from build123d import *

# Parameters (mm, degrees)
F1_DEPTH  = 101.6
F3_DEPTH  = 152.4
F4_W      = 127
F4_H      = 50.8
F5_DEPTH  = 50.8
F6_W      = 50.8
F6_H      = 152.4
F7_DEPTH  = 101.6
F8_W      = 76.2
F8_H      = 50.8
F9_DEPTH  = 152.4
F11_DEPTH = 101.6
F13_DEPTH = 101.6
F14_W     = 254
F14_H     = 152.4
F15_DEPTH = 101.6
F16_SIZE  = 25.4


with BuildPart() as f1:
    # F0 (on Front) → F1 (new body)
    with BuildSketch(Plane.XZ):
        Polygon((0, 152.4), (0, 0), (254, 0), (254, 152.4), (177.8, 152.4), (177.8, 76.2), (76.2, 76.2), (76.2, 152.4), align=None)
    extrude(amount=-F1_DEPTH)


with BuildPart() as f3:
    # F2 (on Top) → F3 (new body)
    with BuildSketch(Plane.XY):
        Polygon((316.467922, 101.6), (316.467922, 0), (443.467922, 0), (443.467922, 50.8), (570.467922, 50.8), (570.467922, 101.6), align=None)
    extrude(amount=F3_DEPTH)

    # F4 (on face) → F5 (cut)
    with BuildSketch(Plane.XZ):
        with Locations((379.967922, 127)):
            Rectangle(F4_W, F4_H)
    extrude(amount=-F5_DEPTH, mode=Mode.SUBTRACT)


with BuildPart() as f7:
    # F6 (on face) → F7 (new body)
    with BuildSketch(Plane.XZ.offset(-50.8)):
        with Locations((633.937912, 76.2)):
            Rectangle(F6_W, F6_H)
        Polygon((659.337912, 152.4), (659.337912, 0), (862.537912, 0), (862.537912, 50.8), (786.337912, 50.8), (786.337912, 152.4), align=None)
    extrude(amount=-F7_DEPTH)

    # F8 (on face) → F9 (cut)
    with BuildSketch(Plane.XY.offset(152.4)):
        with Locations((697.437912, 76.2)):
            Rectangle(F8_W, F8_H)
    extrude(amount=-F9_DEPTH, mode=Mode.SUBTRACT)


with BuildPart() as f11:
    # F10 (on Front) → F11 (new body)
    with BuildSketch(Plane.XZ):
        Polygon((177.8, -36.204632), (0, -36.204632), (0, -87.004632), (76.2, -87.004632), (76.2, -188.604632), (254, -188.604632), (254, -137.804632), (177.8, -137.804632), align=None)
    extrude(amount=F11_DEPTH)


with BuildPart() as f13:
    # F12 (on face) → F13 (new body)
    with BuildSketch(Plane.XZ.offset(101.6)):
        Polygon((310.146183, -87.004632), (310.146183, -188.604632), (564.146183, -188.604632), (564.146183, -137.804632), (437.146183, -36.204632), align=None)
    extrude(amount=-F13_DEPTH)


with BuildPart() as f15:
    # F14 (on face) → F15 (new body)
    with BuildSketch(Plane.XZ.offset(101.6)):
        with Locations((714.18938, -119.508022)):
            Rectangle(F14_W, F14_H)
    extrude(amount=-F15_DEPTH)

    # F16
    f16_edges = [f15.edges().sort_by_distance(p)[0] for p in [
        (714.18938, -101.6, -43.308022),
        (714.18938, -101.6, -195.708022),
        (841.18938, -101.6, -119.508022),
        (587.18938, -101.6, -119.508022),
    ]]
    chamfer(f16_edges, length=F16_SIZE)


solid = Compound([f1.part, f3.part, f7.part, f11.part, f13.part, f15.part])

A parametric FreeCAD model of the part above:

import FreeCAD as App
import Part
import Sketcher
from FreeCAD import Vector
Q = App.Units.Quantity


def edges_at(feature, points):
    """Names of the edges that pass closest to the given points."""
    edges = feature.Shape.Edges
    near = lambda p: min(range(len(edges)), key=lambda i: edges[i].distToShape(Part.Vertex(*p))[0])
    return sorted({f"Edge{near(p) + 1}" for p in points})


def add_polygon(sketch, points):
    """Adds a closed chain of lines whose ends are joined by coincident constraints."""
    first, n = sketch.GeometryCount, len(points)
    for a, b in zip(points, points[1:] + points[:1]):
        sketch.addGeometry(Part.LineSegment(App.Vector(*a, 0), App.Vector(*b, 0)), False)
    for i in range(n):
        sketch.addConstraint(Sketcher.Constraint("Coincident", first + i, 2, first + (i + 1) % n, 1))

doc = App.newDocument("Part")
body = doc.addObject("PartDesign::Body", "Body")

# Sketch on XZ plane
sketch1 = doc.addObject("Sketcher::SketchObject", "Sketch")
body.addObject(sketch1)
sketch1.AttachmentSupport = (doc.XZ_Plane, [""])
sketch1.MapMode = "FlatFace"
add_polygon(sketch1, [(0, 152), (0, 0), (254, 0), (254, 152), (178, 152), (178, 76), (76, 76), (76, 152)])  # lines 0-7
sketch1.addConstraint(Sketcher.Constraint("Vertical", 0))
sketch1.addConstraint(Sketcher.Constraint("Horizontal", 1))
sketch1.addConstraint(Sketcher.Constraint("Vertical", 2))
sketch1.addConstraint(Sketcher.Constraint("Horizontal", 3))
sketch1.addConstraint(Sketcher.Constraint("Vertical", 4))
sketch1.addConstraint(Sketcher.Constraint("Horizontal", 5))
sketch1.addConstraint(Sketcher.Constraint("Vertical", 6))
sketch1.addConstraint(Sketcher.Constraint("Horizontal", 7))
sketch1.addConstraint(Sketcher.Constraint("Coincident", 0, 2, -1, 1))
sketch1.addConstraint(Sketcher.Constraint("Horizontal", 3, 2, 6, 2))
sketch1.addConstraint(Sketcher.Constraint("Equal", 3, 7))
sketch1.addConstraint(Sketcher.Constraint("Equal", 7, 4))
sketch1.addConstraint(Sketcher.Constraint("DistanceX", 1, 1, 1, 2, Q("10 in")))
sketch1.addConstraint(Sketcher.Constraint("DistanceX", 3, 2, 3, 1, Q("3 in")))
sketch1.addConstraint(Sketcher.Constraint("DistanceY", 0, 2, 0, 1, Q("6 in")))
pad1 = doc.addObject("PartDesign::Pad", "Pad")
body.addObject(pad1)
pad1.Profile = sketch1
pad1.Length = Q("4 in")
pad1.Reversed = True
body2 = doc.addObject("PartDesign::Body", "Body001")

# Sketch on XY plane
sketch2 = doc.addObject("Sketcher::SketchObject", "Sketch001")
body2.addObject(sketch2)
sketch2.AttachmentSupport = (doc.getObject("XY_Plane001"), [""])
sketch2.MapMode = "FlatFace"
add_polygon(sketch2, [(316, 102), (316, 0), (443, 0), (443, 51), (570, 51), (570, 102)])  # lines 0-5
sketch2.addConstraint(Sketcher.Constraint("Vertical", 0))
sketch2.addConstraint(Sketcher.Constraint("Horizontal", 1))
sketch2.addConstraint(Sketcher.Constraint("Vertical", 2))
sketch2.addConstraint(Sketcher.Constraint("Horizontal", 3))
sketch2.addConstraint(Sketcher.Constraint("Vertical", 4))
sketch2.addConstraint(Sketcher.Constraint("Horizontal", 5))
sketch2.addConstraint(Sketcher.Constraint("PointOnObject", 0, 2, -1))
sketch2.addConstraint(Sketcher.Constraint("Equal", 1, 3))
sketch2.addConstraint(Sketcher.Constraint("Equal", 2, 4))
sketch2.addConstraint(Sketcher.Constraint("DistanceX", 1, 1, 1, 2, Q("5 in")))
sketch2.addConstraint(Sketcher.Constraint("DistanceY", 0, 2, 0, 1, Q("4 in")))
sketch2.addConstraint(Sketcher.Constraint("DistanceX", -1, 1, 0, 2, Q("316.467922 mm")))
pad2 = doc.addObject("PartDesign::Pad", "Pad001")
body2.addObject(pad2)
pad2.Profile = sketch2
pad2.Length = Q("6 in")

# Sketch on XZ plane
sketch3 = doc.addObject("Sketcher::SketchObject", "Sketch002")
body2.addObject(sketch3)
sketch3.AttachmentSupport = (doc.getObject("XZ_Plane001"), [""])
sketch3.MapMode = "FlatFace"
add_polygon(sketch3, [(316, 152), (316, 102), (443, 102), (443, 152)])  # lines 0-3
sketch3.addConstraint(Sketcher.Constraint("Vertical", 0))
sketch3.addConstraint(Sketcher.Constraint("Horizontal", 1))
sketch3.addConstraint(Sketcher.Constraint("Vertical", 2))
sketch3.addConstraint(Sketcher.Constraint("Horizontal", 3))
sketch3.addConstraint(Sketcher.Constraint("DistanceX", 1, 1, 1, 2, Q("5 in")))
sketch3.addConstraint(Sketcher.Constraint("DistanceY", 0, 2, 0, 1, Q("2 in")))
sketch3.addConstraint(Sketcher.Constraint("DistanceY", -1, 1, 0, 2, Q("4 in")))
sketch3.addConstraint(Sketcher.Constraint("DistanceX", -1, 1, 0, 2, Q("316.467922 mm")))
pocket1 = doc.addObject("PartDesign::Pocket", "Pocket")
body2.addObject(pocket1)
pocket1.Profile = sketch3
pocket1.Length = Q("2 in")
body3 = doc.addObject("PartDesign::Body", "Body002")

# Sketch on XZ plane
sketch4 = doc.addObject("Sketcher::SketchObject", "Sketch003")
body3.addObject(sketch4)
sketch4.AttachmentSupport = (doc.getObject("XZ_Plane002"), [""])
sketch4.MapMode = "FlatFace"
sketch4.AttachmentOffset = App.Placement(Vector(0, 0, -2 * 25.4), App.Rotation())
add_polygon(sketch4, [(609, 152), (609, 0), (863, 0), (863, 51), (786, 51), (786, 152)])  # lines 0-5
sketch4.addConstraint(Sketcher.Constraint("Vertical", 0))
sketch4.addConstraint(Sketcher.Constraint("Horizontal", 1))
sketch4.addConstraint(Sketcher.Constraint("Vertical", 2))
sketch4.addConstraint(Sketcher.Constraint("Horizontal", 3))
sketch4.addConstraint(Sketcher.Constraint("Vertical", 4))
sketch4.addConstraint(Sketcher.Constraint("Horizontal", 5))
sketch4.addConstraint(Sketcher.Constraint("PointOnObject", 0, 2, -1))
sketch4.addConstraint(Sketcher.Constraint("DistanceX", 1, 1, 1, 2, Q("10 in")))
sketch4.addConstraint(Sketcher.Constraint("DistanceX", 3, 2, 3, 1, Q("3 in")))
sketch4.addConstraint(Sketcher.Constraint("DistanceY", 0, 2, 0, 1, Q("6 in")))
sketch4.addConstraint(Sketcher.Constraint("DistanceY", 2, 1, 2, 2, Q("2 in")))
sketch4.addConstraint(Sketcher.Constraint("DistanceX", -1, 1, 0, 2, Q("608.537912 mm")))
pad3 = doc.addObject("PartDesign::Pad", "Pad002")
body3.addObject(pad3)
pad3.Profile = sketch4
pad3.Length = Q("4 in")
pad3.Reversed = True

# Sketch on XY plane
sketch5 = doc.addObject("Sketcher::SketchObject", "Sketch004")
body3.addObject(sketch5)
sketch5.AttachmentSupport = (doc.getObject("XY_Plane002"), [""])
sketch5.MapMode = "FlatFace"
sketch5.AttachmentOffset = App.Placement(Vector(0, 0, 6 * 25.4), App.Rotation())
add_polygon(sketch5, [(659, 102), (659, 51), (736, 51), (736, 102)])  # lines 0-3
sketch5.addConstraint(Sketcher.Constraint("Vertical", 0))
sketch5.addConstraint(Sketcher.Constraint("Horizontal", 1))
sketch5.addConstraint(Sketcher.Constraint("Vertical", 2))
sketch5.addConstraint(Sketcher.Constraint("Horizontal", 3))
sketch5.addConstraint(Sketcher.Constraint("DistanceX", 1, 1, 1, 2, Q("3 in")))
sketch5.addConstraint(Sketcher.Constraint("DistanceY", 0, 2, 0, 1, Q("2 in")))
sketch5.addConstraint(Sketcher.Constraint("DistanceY", -1, 1, 0, 2, Q("2 in")))
sketch5.addConstraint(Sketcher.Constraint("DistanceX", -1, 1, 0, 2, Q("659.337912 mm")))
pocket2 = doc.addObject("PartDesign::Pocket", "Pocket001")
body3.addObject(pocket2)
pocket2.Profile = sketch5
pocket2.Length = Q("6 in")
body4 = doc.addObject("PartDesign::Body", "Body003")

# Sketch on XZ plane
sketch6 = doc.addObject("Sketcher::SketchObject", "Sketch005")
body4.addObject(sketch6)
sketch6.AttachmentSupport = (doc.getObject("XZ_Plane003"), [""])
sketch6.MapMode = "FlatFace"
add_polygon(sketch6, [(178, -36), (0, -36), (0, -87), (76, -87), (76, -189), (254, -189), (254, -138), (178, -138)])  # lines 0-7
sketch6.addConstraint(Sketcher.Constraint("Horizontal", 0))
sketch6.addConstraint(Sketcher.Constraint("Vertical", 1))
sketch6.addConstraint(Sketcher.Constraint("Horizontal", 2))
sketch6.addConstraint(Sketcher.Constraint("Vertical", 3))
sketch6.addConstraint(Sketcher.Constraint("Horizontal", 4))
sketch6.addConstraint(Sketcher.Constraint("Vertical", 5))
sketch6.addConstraint(Sketcher.Constraint("Horizontal", 6))
sketch6.addConstraint(Sketcher.Constraint("Vertical", 7))
sketch6.addConstraint(Sketcher.Constraint("PointOnObject", 0, 2, -2))
sketch6.addConstraint(Sketcher.Constraint("Equal", 0, 4))
sketch6.addConstraint(Sketcher.Constraint("Equal", 1, 5))
sketch6.addConstraint(Sketcher.Constraint("DistanceX", 0, 2, 0, 1, Q("7 in")))
sketch6.addConstraint(Sketcher.Constraint("DistanceX", 2, 1, 2, 2, Q("3 in")))
sketch6.addConstraint(Sketcher.Constraint("DistanceY", 1, 2, 1, 1, Q("2 in")))
sketch6.addConstraint(Sketcher.Constraint("DistanceY", 3, 2, 3, 1, Q("4 in")))
sketch6.addConstraint(Sketcher.Constraint("DistanceY", 0, 2, -1, 1, Q("36.204632 mm")))
pad4 = doc.addObject("PartDesign::Pad", "Pad003")
body4.addObject(pad4)
pad4.Profile = sketch6
pad4.Length = Q("4 in")
body5 = doc.addObject("PartDesign::Body", "Body004")

# Sketch on XZ plane
sketch7 = doc.addObject("Sketcher::SketchObject", "Sketch006")
body5.addObject(sketch7)
sketch7.AttachmentSupport = (doc.getObject("XZ_Plane004"), [""])
sketch7.MapMode = "FlatFace"
sketch7.AttachmentOffset = App.Placement(Vector(0, 0, 4 * 25.4), App.Rotation())
add_polygon(sketch7, [(310, -87), (310, -189), (564, -189), (564, -138), (437, -36)])  # lines 0-4
sketch7.addConstraint(Sketcher.Constraint("Vertical", 0))
sketch7.addConstraint(Sketcher.Constraint("Horizontal", 1))
sketch7.addConstraint(Sketcher.Constraint("Vertical", 2))
sketch7.addConstraint(Sketcher.Constraint("DistanceX", 1, 1, 1, 2, Q("10 in")))
sketch7.addConstraint(Sketcher.Constraint("DistanceY", 0, 2, 0, 1, Q("4 in")))
sketch7.addConstraint(Sketcher.Constraint("DistanceY", 2, 1, 2, 2, Q("2 in")))
sketch7.addConstraint(Sketcher.Constraint("DistanceX", 3, 2, 2, 2, Q("5 in")))
sketch7.addConstraint(Sketcher.Constraint("DistanceY", 2, 2, 3, 2, Q("4 in")))
sketch7.addConstraint(Sketcher.Constraint("DistanceY", 2, 2, -1, 1, Q("137.804632 mm")))
sketch7.addConstraint(Sketcher.Constraint("DistanceX", -1, 1, 0, 2, Q("310.146183 mm")))
pad5 = doc.addObject("PartDesign::Pad", "Pad004")
body5.addObject(pad5)
pad5.Profile = sketch7
pad5.Length = Q("4 in")
pad5.Reversed = True
body6 = doc.addObject("PartDesign::Body", "Body005")

# Sketch on XZ plane
sketch8 = doc.addObject("Sketcher::SketchObject", "Sketch007")
body6.addObject(sketch8)
sketch8.AttachmentSupport = (doc.getObject("XZ_Plane005"), [""])
sketch8.MapMode = "FlatFace"
sketch8.AttachmentOffset = App.Placement(Vector(0, 0, 4 * 25.4), App.Rotation())
add_polygon(sketch8, [(587, -43), (587, -196), (841, -196), (841, -43)])  # lines 0-3
sketch8.addConstraint(Sketcher.Constraint("Vertical", 0))
sketch8.addConstraint(Sketcher.Constraint("Horizontal", 1))
sketch8.addConstraint(Sketcher.Constraint("Vertical", 2))
sketch8.addConstraint(Sketcher.Constraint("Horizontal", 3))
sketch8.addConstraint(Sketcher.Constraint("DistanceX", 1, 1, 1, 2, Q("10 in")))
sketch8.addConstraint(Sketcher.Constraint("DistanceY", 0, 2, 0, 1, Q("6 in")))
sketch8.addConstraint(Sketcher.Constraint("DistanceX", -1, 1, 0, 2, Q("587.18938 mm")))
sketch8.addConstraint(Sketcher.Constraint("DistanceY", 0, 2, -1, 1, Q("195.708022 mm")))
pad6 = doc.addObject("PartDesign::Pad", "Pad005")
body6.addObject(pad6)
pad6.Profile = sketch8
pad6.Length = Q("4 in")
pad6.Reversed = True
doc.recompute()

chamfer = doc.addObject("PartDesign::Chamfer", "Chamfer")
body6.addObject(chamfer)
chamfer.Base = (pad6, edges_at(pad6, [
    (714.189, -101.6, -43.308),
    (714.189, -101.6, -195.708),
    (841.189, -101.6, -119.508),
    (587.189, -101.6, -119.508),
]))
chamfer.Size = Q("1 in")

doc.recompute()
